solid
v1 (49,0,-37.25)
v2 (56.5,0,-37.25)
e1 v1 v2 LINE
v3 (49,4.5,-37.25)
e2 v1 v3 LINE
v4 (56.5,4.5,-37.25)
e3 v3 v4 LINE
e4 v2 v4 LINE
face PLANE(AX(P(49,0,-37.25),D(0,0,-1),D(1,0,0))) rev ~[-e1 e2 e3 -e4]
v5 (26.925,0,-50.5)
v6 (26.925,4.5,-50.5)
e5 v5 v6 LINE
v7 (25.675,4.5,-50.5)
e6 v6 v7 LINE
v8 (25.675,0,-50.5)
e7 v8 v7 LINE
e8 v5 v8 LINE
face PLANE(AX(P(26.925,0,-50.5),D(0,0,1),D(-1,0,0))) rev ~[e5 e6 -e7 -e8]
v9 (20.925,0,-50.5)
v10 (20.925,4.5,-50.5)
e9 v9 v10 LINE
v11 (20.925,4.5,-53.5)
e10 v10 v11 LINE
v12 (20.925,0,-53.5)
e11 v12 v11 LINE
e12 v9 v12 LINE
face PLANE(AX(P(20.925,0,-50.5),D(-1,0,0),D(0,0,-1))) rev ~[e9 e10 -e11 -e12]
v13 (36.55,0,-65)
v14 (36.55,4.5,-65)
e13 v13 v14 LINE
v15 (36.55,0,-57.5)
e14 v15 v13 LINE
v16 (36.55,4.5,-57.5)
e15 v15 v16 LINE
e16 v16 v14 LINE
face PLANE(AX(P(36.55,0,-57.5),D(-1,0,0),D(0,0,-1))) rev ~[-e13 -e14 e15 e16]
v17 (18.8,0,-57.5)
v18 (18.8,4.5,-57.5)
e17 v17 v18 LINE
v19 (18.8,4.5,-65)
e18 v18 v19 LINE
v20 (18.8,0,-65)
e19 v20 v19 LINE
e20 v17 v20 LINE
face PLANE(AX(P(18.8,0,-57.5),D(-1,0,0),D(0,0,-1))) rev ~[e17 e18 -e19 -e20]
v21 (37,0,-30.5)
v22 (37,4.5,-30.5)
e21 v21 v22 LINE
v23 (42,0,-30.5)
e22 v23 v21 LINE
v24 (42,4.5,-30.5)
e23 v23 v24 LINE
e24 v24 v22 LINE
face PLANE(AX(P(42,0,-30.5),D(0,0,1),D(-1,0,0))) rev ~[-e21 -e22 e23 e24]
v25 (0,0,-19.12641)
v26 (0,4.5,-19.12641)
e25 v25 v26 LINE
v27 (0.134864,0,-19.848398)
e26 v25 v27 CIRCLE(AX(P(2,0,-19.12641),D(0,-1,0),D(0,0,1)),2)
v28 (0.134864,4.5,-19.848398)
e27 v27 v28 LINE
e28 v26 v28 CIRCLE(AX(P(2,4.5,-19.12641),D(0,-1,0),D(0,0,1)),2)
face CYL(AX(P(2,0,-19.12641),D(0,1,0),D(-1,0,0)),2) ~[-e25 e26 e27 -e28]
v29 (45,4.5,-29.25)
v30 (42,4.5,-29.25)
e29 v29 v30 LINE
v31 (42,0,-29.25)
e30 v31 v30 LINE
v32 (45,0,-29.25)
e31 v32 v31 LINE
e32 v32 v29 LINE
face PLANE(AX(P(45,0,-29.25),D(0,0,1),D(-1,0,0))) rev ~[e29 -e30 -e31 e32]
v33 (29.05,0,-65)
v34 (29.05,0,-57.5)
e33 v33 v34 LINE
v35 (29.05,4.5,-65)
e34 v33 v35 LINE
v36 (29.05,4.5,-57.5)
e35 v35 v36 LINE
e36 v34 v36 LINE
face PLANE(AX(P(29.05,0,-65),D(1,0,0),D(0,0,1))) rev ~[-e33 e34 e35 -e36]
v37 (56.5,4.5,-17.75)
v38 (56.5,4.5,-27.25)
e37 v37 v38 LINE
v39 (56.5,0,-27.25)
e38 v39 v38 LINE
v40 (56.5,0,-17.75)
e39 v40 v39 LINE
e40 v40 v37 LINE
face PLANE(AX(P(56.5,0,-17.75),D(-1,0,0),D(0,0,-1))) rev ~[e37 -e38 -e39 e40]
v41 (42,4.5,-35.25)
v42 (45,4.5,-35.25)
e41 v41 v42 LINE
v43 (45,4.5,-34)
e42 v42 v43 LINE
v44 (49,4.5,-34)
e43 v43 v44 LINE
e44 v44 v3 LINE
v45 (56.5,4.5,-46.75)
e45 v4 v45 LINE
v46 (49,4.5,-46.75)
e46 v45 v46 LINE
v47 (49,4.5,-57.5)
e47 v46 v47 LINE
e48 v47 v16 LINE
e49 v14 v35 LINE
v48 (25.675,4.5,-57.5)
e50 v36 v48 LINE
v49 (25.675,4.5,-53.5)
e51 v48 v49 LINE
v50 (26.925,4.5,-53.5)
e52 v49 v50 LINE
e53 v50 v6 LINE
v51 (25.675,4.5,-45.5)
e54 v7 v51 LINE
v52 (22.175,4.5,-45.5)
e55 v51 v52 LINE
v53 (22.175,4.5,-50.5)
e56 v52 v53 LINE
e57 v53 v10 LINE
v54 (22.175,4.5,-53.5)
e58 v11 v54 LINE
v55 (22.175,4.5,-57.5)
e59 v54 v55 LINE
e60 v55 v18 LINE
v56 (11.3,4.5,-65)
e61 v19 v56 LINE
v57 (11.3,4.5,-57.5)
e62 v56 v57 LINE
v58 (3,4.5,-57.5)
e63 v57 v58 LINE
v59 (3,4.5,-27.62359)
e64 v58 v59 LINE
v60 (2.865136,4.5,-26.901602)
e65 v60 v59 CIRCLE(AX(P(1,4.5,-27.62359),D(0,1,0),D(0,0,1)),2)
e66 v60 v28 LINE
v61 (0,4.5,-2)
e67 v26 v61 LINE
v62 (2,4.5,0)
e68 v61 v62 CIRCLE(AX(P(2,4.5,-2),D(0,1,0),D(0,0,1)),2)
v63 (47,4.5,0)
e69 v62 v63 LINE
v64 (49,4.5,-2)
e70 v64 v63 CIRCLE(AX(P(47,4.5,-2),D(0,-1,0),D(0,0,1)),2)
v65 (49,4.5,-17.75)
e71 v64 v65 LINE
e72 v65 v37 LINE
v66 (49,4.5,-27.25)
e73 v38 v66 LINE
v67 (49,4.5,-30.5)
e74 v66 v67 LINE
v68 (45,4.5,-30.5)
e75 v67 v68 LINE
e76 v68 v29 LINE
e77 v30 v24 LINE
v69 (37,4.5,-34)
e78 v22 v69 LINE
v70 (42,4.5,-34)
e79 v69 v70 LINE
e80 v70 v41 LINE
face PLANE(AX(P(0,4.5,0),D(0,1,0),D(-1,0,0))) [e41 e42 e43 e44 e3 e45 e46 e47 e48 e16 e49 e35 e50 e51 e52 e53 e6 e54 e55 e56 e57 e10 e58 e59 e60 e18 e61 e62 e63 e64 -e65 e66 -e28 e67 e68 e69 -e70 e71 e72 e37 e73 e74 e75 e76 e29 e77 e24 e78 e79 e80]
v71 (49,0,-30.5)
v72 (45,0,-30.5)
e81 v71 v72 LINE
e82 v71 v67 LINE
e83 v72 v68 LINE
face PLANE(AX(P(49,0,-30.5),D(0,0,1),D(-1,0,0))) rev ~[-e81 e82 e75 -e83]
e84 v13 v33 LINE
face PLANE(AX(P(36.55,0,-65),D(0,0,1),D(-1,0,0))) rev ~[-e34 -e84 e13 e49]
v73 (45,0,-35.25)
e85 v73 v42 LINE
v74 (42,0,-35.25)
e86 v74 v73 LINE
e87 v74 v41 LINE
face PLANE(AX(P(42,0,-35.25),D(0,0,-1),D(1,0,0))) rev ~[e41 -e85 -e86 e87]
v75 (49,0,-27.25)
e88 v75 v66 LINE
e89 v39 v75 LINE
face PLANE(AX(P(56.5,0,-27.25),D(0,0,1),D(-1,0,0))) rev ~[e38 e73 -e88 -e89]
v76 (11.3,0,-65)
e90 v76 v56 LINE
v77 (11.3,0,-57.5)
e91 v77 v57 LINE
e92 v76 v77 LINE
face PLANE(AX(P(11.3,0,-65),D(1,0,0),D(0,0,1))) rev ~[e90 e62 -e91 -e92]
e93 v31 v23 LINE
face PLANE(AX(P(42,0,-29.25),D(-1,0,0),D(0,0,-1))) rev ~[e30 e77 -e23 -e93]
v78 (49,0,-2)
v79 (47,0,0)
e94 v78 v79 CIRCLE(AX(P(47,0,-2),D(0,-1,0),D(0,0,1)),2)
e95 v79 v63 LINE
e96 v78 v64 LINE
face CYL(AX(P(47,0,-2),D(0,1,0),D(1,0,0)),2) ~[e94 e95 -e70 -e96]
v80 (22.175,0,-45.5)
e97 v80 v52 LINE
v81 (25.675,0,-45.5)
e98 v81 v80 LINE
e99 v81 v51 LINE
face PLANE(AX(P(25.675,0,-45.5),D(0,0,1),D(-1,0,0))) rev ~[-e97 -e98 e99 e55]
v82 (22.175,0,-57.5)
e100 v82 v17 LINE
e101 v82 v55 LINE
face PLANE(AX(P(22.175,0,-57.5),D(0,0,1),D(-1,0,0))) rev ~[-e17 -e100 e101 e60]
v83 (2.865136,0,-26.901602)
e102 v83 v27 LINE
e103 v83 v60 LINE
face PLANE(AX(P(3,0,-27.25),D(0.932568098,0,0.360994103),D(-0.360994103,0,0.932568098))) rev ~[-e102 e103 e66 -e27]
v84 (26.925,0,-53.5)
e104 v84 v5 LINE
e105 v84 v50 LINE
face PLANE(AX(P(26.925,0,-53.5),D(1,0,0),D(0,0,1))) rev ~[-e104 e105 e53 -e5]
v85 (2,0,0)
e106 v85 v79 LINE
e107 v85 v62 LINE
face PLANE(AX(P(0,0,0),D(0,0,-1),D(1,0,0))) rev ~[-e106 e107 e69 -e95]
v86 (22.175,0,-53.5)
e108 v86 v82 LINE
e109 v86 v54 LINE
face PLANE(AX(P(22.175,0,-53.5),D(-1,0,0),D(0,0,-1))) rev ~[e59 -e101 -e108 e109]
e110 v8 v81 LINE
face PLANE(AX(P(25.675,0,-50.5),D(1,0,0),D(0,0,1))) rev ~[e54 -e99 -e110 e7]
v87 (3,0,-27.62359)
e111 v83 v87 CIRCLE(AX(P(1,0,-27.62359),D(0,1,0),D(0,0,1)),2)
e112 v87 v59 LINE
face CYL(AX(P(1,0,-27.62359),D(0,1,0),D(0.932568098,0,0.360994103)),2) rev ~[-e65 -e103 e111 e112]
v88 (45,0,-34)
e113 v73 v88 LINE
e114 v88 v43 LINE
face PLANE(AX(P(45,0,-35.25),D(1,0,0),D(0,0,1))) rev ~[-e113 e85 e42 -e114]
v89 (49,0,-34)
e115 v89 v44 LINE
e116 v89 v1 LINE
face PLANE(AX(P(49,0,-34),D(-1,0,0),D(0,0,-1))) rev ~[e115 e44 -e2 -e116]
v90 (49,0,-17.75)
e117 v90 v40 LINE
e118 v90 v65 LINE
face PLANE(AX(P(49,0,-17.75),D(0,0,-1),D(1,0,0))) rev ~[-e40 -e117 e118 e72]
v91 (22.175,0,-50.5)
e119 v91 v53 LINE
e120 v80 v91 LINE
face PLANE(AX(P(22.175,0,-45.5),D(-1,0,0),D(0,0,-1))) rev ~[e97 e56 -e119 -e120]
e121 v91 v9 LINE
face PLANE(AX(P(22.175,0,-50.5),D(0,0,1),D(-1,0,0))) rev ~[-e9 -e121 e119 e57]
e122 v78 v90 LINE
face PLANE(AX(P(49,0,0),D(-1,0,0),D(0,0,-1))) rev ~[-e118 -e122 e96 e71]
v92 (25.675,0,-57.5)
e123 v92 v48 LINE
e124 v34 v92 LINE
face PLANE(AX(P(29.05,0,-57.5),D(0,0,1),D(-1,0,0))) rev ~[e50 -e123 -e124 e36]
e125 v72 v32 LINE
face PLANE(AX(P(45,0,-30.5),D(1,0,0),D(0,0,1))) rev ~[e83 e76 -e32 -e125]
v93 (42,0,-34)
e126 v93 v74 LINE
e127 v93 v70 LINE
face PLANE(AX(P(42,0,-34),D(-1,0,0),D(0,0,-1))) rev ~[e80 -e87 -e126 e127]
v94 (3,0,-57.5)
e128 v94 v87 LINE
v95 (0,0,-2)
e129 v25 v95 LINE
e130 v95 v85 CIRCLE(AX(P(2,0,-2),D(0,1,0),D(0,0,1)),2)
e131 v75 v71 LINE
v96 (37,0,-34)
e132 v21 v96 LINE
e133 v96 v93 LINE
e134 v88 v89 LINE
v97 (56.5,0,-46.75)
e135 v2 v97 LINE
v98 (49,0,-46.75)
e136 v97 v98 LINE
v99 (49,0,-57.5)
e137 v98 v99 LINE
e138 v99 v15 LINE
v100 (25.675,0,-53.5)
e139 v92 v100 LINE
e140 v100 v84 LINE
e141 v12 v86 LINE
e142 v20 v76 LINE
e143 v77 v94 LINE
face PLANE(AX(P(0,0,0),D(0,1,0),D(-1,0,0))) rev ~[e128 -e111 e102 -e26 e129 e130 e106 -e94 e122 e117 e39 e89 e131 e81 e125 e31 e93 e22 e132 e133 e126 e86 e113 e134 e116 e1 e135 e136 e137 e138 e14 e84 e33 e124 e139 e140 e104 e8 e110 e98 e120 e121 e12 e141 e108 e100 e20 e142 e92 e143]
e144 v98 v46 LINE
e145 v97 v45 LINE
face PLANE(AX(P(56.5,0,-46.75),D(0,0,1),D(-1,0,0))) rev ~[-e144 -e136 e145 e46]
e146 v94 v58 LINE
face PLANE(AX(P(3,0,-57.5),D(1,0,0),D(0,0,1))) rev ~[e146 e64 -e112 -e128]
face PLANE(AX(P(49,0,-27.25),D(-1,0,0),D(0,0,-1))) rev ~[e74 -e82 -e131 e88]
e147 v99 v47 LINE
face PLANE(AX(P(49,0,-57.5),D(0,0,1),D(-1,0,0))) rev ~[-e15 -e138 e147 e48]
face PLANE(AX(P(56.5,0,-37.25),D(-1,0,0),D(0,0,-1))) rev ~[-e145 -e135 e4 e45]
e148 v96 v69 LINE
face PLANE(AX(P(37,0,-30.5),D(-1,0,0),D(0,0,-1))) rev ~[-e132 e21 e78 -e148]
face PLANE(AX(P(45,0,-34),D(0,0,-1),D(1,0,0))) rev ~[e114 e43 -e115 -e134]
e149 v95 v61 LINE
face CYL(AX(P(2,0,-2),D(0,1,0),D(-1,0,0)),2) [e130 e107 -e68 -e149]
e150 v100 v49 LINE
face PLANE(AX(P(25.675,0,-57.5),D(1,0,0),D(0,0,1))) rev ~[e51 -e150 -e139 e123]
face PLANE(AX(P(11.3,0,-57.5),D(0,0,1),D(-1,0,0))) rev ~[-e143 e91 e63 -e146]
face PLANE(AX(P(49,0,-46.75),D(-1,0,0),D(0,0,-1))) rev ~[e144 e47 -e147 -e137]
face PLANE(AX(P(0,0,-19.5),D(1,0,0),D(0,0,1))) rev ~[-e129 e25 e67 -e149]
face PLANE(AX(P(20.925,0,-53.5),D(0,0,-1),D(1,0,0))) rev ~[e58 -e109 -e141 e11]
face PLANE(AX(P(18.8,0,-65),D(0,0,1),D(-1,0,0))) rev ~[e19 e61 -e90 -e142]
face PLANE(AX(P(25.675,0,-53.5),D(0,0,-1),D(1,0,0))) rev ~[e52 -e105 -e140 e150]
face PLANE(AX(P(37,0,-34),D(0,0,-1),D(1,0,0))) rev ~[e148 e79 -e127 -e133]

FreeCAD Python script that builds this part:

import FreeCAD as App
import Part
import Sketcher
from FreeCAD import Vector


def edges_at(feature, points):
    """Names of the edges that pass closest to the given points."""
    edges = feature.Shape.Edges
    near = lambda p: min(range(len(edges)), key=lambda i: edges[i].distToShape(Part.Vertex(*p))[0])
    return sorted({f"Edge{near(p) + 1}" for p in points})

doc = App.newDocument("Part")
body = doc.addObject("PartDesign::Body", "Body")

sketch1 = body.newObject("Sketcher::SketchObject", "Sketch")
sketch1.AttachmentSupport = (doc.getObject("XZ_Plane"), [""])
sketch1.MapMode = "FlatFace"
sketch1.addGeometry([
    Part.LineSegment(Vector(0, -19.5, 0), Vector(0, 0, 0)),
    Part.LineSegment(Vector(0, 0, 0), Vector(49, 0, 0)),
    Part.LineSegment(Vector(49, 0, 0), Vector(49, -17.8, 0)),
    Part.LineSegment(Vector(49, -17.8, 0), Vector(56.5, -17.8, 0)),
    Part.LineSegment(Vector(56.5, -17.8, 0), Vector(56.5, -27.2, 0)),
    Part.LineSegment(Vector(56.5, -27.2, 0), Vector(49, -27.2, 0)),
    Part.LineSegment(Vector(49, -27.2, 0), Vector(49, -30.5, 0)),
    Part.LineSegment(Vector(49, -30.5, 0), Vector(45, -30.5, 0)),
    Part.LineSegment(Vector(45, -30.5, 0), Vector(45, -29.2, 0)),
    Part.LineSegment(Vector(45, -29.2, 0), Vector(42, -29.2, 0)),
    Part.LineSegment(Vector(42, -29.2, 0), Vector(42, -30.5, 0)),
    Part.LineSegment(Vector(42, -30.5, 0), Vector(37, -30.5, 0)),
    Part.LineSegment(Vector(37, -30.5, 0), Vector(37, -34, 0)),
    Part.LineSegment(Vector(37, -34, 0), Vector(42, -34, 0)),
    Part.LineSegment(Vector(42, -34, 0), Vector(42, -35.2, 0)),
    Part.LineSegment(Vector(42, -35.2, 0), Vector(45, -35.2, 0)),
    Part.LineSegment(Vector(45, -35.2, 0), Vector(45, -34, 0)),
    Part.LineSegment(Vector(45, -34, 0), Vector(49, -34, 0)),
    Part.LineSegment(Vector(49, -34, 0), Vector(49, -37.2, 0)),
    Part.LineSegment(Vector(49, -37.2, 0), Vector(56.5, -37.2, 0)),
    Part.LineSegment(Vector(56.5, -37.2, 0), Vector(56.5, -46.8, 0)),
    Part.LineSegment(Vector(56.5, -46.8, 0), Vector(49, -46.8, 0)),
    Part.LineSegment(Vector(49, -46.8, 0), Vector(49, -57.5, 0)),
    Part.LineSegment(Vector(49, -57.5, 0), Vector(36.5, -57.5, 0)),
    Part.LineSegment(Vector(36.5, -57.5, 0), Vector(36.5, -65, 0)),
    Part.LineSegment(Vector(36.5, -65, 0), Vector(29.1, -65, 0)),
    Part.LineSegment(Vector(29.1, -65, 0), Vector(29.1, -57.5, 0)),
    Part.LineSegment(Vector(29.1, -57.5, 0), Vector(25.7, -57.5, 0)),
    Part.LineSegment(Vector(25.7, -57.5, 0), Vector(25.7, -53.5, 0)),
    Part.LineSegment(Vector(25.7, -53.5, 0), Vector(26.9, -53.5, 0)),
    Part.LineSegment(Vector(26.9, -53.5, 0), Vector(26.9, -50.5, 0)),
    Part.LineSegment(Vector(26.9, -50.5, 0), Vector(25.7, -50.5, 0)),
    Part.LineSegment(Vector(25.7, -50.5, 0), Vector(25.7, -45.5, 0)),
    Part.LineSegment(Vector(25.7, -45.5, 0), Vector(22.2, -45.5, 0)),
    Part.LineSegment(Vector(22.2, -45.5, 0), Vector(22.2, -50.5, 0)),
    Part.LineSegment(Vector(22.2, -50.5, 0), Vector(20.9, -50.5, 0)),
    Part.LineSegment(Vector(20.9, -50.5, 0), Vector(20.9, -53.5, 0)),
    Part.LineSegment(Vector(20.9, -53.5, 0), Vector(22.2, -53.5, 0)),
    Part.LineSegment(Vector(22.2, -53.5, 0), Vector(22.2, -57.5, 0)),
    Part.LineSegment(Vector(22.2, -57.5, 0), Vector(18.8, -57.5, 0)),
    Part.LineSegment(Vector(18.8, -57.5, 0), Vector(18.8, -65, 0)),
    Part.LineSegment(Vector(18.8, -65, 0), Vector(11.3, -65, 0)),
    Part.LineSegment(Vector(11.3, -65, 0), Vector(11.3, -57.5, 0)),
    Part.LineSegment(Vector(11.3, -57.5, 0), Vector(3, -57.5, 0)),
    Part.LineSegment(Vector(3, -57.5, 0), Vector(3, -27.2, 0)),
    Part.LineSegment(Vector(3, -27.2, 0), Vector(0, -19.5, 0)),
], False)
sketch1.addConstraint([
    Sketcher.Constraint("Coincident", 0, 2, 1, 1),
    Sketcher.Constraint("Coincident", 1, 2, 2, 1),
    Sketcher.Constraint("Coincident", 2, 2, 3, 1),
    Sketcher.Constraint("Coincident", 3, 2, 4, 1),
    Sketcher.Constraint("Coincident", 4, 2, 5, 1),
    Sketcher.Constraint("Coincident", 5, 2, 6, 1),
    Sketcher.Constraint("Coincident", 6, 2, 7, 1),
    Sketcher.Constraint("Coincident", 7, 2, 8, 1),
    Sketcher.Constraint("Coincident", 8, 2, 9, 1),
    Sketcher.Constraint("Coincident", 9, 2, 10, 1),
    Sketcher.Constraint("Coincident", 10, 2, 11, 1),
    Sketcher.Constraint("Coincident", 11, 2, 12, 1),
    Sketcher.Constraint("Coincident", 12, 2, 13, 1),
    Sketcher.Constraint("Coincident", 13, 2, 14, 1),
    Sketcher.Constraint("Coincident", 14, 2, 15, 1),
    Sketcher.Constraint("Coincident", 15, 2, 16, 1),
    Sketcher.Constraint("Coincident", 16, 2, 17, 1),
    Sketcher.Constraint("Coincident", 17, 2, 18, 1),
    Sketcher.Constraint("Coincident", 18, 2, 19, 1),
    Sketcher.Constraint("Coincident", 19, 2, 20, 1),
    Sketcher.Constraint("Coincident", 20, 2, 21, 1),
    Sketcher.Constraint("Coincident", 21, 2, 22, 1),
    Sketcher.Constraint("Coincident", 22, 2, 23, 1),
    Sketcher.Constraint("Coincident", 23, 2, 24, 1),
    Sketcher.Constraint("Coincident", 24, 2, 25, 1),
    Sketcher.Constraint("Coincident", 25, 2, 26, 1),
    Sketcher.Constraint("Coincident", 26, 2, 27, 1),
    Sketcher.Constraint("Coincident", 27, 2, 28, 1),
    Sketcher.Constraint("Coincident", 28, 2, 29, 1),
    Sketcher.Constraint("Coincident", 29, 2, 30, 1),
    Sketcher.Constraint("Coincident", 30, 2, 31, 1),
    Sketcher.Constraint("Coincident", 31, 2, 32, 1),
    Sketcher.Constraint("Coincident", 32, 2, 33, 1),
    Sketcher.Constraint("Coincident", 33, 2, 34, 1),
    Sketcher.Constraint("Coincident", 34, 2, 35, 1),
    Sketcher.Constraint("Coincident", 35, 2, 36, 1),
    Sketcher.Constraint("Coincident", 36, 2, 37, 1),
    Sketcher.Constraint("Coincident", 37, 2, 38, 1),
    Sketcher.Constraint("Coincident", 38, 2, 39, 1),
    Sketcher.Constraint("Coincident", 39, 2, 40, 1),
    Sketcher.Constraint("Coincident", 40, 2, 41, 1),
    Sketcher.Constraint("Coincident", 41, 2, 42, 1),
    Sketcher.Constraint("Coincident", 42, 2, 43, 1),
    Sketcher.Constraint("Coincident", 43, 2, 44, 1),
    Sketcher.Constraint("Coincident", 44, 2, 45, 1),
    Sketcher.Constraint("Coincident", 45, 2, 0, 1),
    Sketcher.Constraint("Vertical", 0),
    Sketcher.Constraint("Horizontal", 1),
    Sketcher.Constraint("Vertical", 2),
    Sketcher.Constraint("Horizontal", 3),
    Sketcher.Constraint("Vertical", 4),
    Sketcher.Constraint("Horizontal", 5),
    Sketcher.Constraint("Vertical", 6),
    Sketcher.Constraint("Horizontal", 7),
    Sketcher.Constraint("Vertical", 8),
    Sketcher.Constraint("Horizontal", 9),
    Sketcher.Constraint("Vertical", 10),
    Sketcher.Constraint("Horizontal", 11),
    Sketcher.Constraint("Vertical", 12),
    Sketcher.Constraint("Horizontal", 13),
    Sketcher.Constraint("Vertical", 14),
    Sketcher.Constraint("Horizontal", 15),
    Sketcher.Constraint("Vertical", 16),
    Sketcher.Constraint("Horizontal", 17),
    Sketcher.Constraint("Vertical", 18),
    Sketcher.Constraint("Horizontal", 19),
    Sketcher.Constraint("Vertical", 20),
    Sketcher.Constraint("Horizontal", 21),
    Sketcher.Constraint("Vertical", 22),
    Sketcher.Constraint("Horizontal", 23),
    Sketcher.Constraint("Vertical", 24),
    Sketcher.Constraint("Horizontal", 25),
    Sketcher.Constraint("Vertical", 26),
    Sketcher.Constraint("Horizontal", 27),
    Sketcher.Constraint("Vertical", 28),
    Sketcher.Constraint("Horizontal", 29),
    Sketcher.Constraint("Vertical", 30),
    Sketcher.Constraint("Horizontal", 31),
    Sketcher.Constraint("Vertical", 32),
    Sketcher.Constraint("Horizontal", 33),
    Sketcher.Constraint("Vertical", 34),
    Sketcher.Constraint("Horizontal", 35),
    Sketcher.Constraint("Vertical", 36),
    Sketcher.Constraint("Horizontal", 37),
    Sketcher.Constraint("Vertical", 38),
    Sketcher.Constraint("Horizontal", 39),
    Sketcher.Constraint("Vertical", 40),
    Sketcher.Constraint("Horizontal", 41),
    Sketcher.Constraint("Vertical", 42),
    Sketcher.Constraint("Horizontal", 43),
    Sketcher.Constraint("Vertical", 44),
    Sketcher.Constraint("Coincident", 0, 2, -1, 1),
    Sketcher.Constraint("Horizontal", 7, 2, 10, 2),
    Sketcher.Constraint("Horizontal", 13, 2, 16, 2),
    Sketcher.Constraint("Horizontal", 23, 2, 26, 2),
    Sketcher.Constraint("Horizontal", 31, 2, 34, 2),
    Sketcher.Constraint("Horizontal", 29, 2, 36, 2),
    Sketcher.Constraint("Horizontal", 27, 2, 38, 2),
    Sketcher.Constraint("Horizontal", 25, 2, 40, 2),
    Sketcher.Constraint("Horizontal", 39, 2, 42, 2),
    Sketcher.Constraint("Horizontal", 5, 2, 44, 2),
    Sketcher.Constraint("Vertical", 2, 2, 5, 2),
    Sketcher.Constraint("Vertical", 10, 2, 13, 2),
    Sketcher.Constraint("Vertical", 8, 2, 15, 2),
    Sketcher.Constraint("Vertical", 6, 2, 17, 2),
    Sketcher.Constraint("Vertical", 4, 2, 19, 2),
    Sketcher.Constraint("Vertical", 18, 2, 21, 2),
    Sketcher.Constraint("Vertical", 28, 2, 31, 2),
    Sketcher.Constraint("Vertical", 34, 2, 37, 2),
    Sketcher.Constraint("Equal", 21, 25),
    Sketcher.Constraint("Equal", 31, 35),
    Sketcher.Constraint("Equal", 27, 39),
    Sketcher.Constraint("Equal", 25, 41),
    Sketcher.Constraint("Equal", 37, 8),
    Sketcher.Constraint("Equal", 33, 12),
    Sketcher.Constraint("Equal", 10, 14),
    Sketcher.Constraint("Equal", 6, 18),
    Sketcher.Constraint("Equal", 4, 20),
    Sketcher.Constraint("Equal", 41, 24),
    Sketcher.Constraint("Equal", 17, 28),
    Sketcher.Constraint("Equal", 15, 30),
    Sketcher.Constraint("Equal", 13, 32),
    Sketcher.Constraint("DistanceX", 1, 1, 1, 2, 49.0),
    Sketcher.Constraint("DistanceX", 7, 2, 7, 1, 4.0),
    Sketcher.Constraint("DistanceX", 9, 2, 9, 1, 3.0),
    Sketcher.Constraint("DistanceX", 11, 2, 11, 1, 5.0),
    Sketcher.Constraint("DistanceX", 3, 1, 3, 2, 7.5),
    Sketcher.Constraint("DistanceX", 33, 2, 33, 1, 3.5),
    Sketcher.Constraint("DistanceX", 43, 2, 43, 1, 8.3),
    Sketcher.Constraint("DistanceY", 0, 1, 0, 2, 19.5),
    Sketcher.Constraint("DistanceY", 4, 2, 4, 1, 9.5),
    Sketcher.Constraint("DistanceY", 24, 2, -1, 1, 65.0),
    Sketcher.Constraint("DistanceX", -1, 1, 43, 2, 3.0),
    Sketcher.Constraint("DistanceY", 14, 2, 9, 2, 6.0),
    Sketcher.Constraint("DistanceY", 19, 2, 4, 2, 10.0),
    Sketcher.Constraint("DistanceY", 2, 2, 2, 1, 17.75),
    Sketcher.Constraint("DistanceX", 40, 2, 25, 2, 10.25),
])
pad1 = body.newObject("PartDesign::Pad", "Pad")
pad1.Profile = sketch1
pad1.Length = 4.5
pad1.Reversed = True
doc.recompute()

fillet = body.newObject("PartDesign::Fillet", "Fillet")
fillet.Base = (pad1, edges_at(pad1, [
    (0, 2.25, 0),
    (49, 2.25, 0),
    (0, 2.25, -19.5),
    (3, 2.25, -27.25),
]))
fillet.Radius = 2

doc.recompute()
